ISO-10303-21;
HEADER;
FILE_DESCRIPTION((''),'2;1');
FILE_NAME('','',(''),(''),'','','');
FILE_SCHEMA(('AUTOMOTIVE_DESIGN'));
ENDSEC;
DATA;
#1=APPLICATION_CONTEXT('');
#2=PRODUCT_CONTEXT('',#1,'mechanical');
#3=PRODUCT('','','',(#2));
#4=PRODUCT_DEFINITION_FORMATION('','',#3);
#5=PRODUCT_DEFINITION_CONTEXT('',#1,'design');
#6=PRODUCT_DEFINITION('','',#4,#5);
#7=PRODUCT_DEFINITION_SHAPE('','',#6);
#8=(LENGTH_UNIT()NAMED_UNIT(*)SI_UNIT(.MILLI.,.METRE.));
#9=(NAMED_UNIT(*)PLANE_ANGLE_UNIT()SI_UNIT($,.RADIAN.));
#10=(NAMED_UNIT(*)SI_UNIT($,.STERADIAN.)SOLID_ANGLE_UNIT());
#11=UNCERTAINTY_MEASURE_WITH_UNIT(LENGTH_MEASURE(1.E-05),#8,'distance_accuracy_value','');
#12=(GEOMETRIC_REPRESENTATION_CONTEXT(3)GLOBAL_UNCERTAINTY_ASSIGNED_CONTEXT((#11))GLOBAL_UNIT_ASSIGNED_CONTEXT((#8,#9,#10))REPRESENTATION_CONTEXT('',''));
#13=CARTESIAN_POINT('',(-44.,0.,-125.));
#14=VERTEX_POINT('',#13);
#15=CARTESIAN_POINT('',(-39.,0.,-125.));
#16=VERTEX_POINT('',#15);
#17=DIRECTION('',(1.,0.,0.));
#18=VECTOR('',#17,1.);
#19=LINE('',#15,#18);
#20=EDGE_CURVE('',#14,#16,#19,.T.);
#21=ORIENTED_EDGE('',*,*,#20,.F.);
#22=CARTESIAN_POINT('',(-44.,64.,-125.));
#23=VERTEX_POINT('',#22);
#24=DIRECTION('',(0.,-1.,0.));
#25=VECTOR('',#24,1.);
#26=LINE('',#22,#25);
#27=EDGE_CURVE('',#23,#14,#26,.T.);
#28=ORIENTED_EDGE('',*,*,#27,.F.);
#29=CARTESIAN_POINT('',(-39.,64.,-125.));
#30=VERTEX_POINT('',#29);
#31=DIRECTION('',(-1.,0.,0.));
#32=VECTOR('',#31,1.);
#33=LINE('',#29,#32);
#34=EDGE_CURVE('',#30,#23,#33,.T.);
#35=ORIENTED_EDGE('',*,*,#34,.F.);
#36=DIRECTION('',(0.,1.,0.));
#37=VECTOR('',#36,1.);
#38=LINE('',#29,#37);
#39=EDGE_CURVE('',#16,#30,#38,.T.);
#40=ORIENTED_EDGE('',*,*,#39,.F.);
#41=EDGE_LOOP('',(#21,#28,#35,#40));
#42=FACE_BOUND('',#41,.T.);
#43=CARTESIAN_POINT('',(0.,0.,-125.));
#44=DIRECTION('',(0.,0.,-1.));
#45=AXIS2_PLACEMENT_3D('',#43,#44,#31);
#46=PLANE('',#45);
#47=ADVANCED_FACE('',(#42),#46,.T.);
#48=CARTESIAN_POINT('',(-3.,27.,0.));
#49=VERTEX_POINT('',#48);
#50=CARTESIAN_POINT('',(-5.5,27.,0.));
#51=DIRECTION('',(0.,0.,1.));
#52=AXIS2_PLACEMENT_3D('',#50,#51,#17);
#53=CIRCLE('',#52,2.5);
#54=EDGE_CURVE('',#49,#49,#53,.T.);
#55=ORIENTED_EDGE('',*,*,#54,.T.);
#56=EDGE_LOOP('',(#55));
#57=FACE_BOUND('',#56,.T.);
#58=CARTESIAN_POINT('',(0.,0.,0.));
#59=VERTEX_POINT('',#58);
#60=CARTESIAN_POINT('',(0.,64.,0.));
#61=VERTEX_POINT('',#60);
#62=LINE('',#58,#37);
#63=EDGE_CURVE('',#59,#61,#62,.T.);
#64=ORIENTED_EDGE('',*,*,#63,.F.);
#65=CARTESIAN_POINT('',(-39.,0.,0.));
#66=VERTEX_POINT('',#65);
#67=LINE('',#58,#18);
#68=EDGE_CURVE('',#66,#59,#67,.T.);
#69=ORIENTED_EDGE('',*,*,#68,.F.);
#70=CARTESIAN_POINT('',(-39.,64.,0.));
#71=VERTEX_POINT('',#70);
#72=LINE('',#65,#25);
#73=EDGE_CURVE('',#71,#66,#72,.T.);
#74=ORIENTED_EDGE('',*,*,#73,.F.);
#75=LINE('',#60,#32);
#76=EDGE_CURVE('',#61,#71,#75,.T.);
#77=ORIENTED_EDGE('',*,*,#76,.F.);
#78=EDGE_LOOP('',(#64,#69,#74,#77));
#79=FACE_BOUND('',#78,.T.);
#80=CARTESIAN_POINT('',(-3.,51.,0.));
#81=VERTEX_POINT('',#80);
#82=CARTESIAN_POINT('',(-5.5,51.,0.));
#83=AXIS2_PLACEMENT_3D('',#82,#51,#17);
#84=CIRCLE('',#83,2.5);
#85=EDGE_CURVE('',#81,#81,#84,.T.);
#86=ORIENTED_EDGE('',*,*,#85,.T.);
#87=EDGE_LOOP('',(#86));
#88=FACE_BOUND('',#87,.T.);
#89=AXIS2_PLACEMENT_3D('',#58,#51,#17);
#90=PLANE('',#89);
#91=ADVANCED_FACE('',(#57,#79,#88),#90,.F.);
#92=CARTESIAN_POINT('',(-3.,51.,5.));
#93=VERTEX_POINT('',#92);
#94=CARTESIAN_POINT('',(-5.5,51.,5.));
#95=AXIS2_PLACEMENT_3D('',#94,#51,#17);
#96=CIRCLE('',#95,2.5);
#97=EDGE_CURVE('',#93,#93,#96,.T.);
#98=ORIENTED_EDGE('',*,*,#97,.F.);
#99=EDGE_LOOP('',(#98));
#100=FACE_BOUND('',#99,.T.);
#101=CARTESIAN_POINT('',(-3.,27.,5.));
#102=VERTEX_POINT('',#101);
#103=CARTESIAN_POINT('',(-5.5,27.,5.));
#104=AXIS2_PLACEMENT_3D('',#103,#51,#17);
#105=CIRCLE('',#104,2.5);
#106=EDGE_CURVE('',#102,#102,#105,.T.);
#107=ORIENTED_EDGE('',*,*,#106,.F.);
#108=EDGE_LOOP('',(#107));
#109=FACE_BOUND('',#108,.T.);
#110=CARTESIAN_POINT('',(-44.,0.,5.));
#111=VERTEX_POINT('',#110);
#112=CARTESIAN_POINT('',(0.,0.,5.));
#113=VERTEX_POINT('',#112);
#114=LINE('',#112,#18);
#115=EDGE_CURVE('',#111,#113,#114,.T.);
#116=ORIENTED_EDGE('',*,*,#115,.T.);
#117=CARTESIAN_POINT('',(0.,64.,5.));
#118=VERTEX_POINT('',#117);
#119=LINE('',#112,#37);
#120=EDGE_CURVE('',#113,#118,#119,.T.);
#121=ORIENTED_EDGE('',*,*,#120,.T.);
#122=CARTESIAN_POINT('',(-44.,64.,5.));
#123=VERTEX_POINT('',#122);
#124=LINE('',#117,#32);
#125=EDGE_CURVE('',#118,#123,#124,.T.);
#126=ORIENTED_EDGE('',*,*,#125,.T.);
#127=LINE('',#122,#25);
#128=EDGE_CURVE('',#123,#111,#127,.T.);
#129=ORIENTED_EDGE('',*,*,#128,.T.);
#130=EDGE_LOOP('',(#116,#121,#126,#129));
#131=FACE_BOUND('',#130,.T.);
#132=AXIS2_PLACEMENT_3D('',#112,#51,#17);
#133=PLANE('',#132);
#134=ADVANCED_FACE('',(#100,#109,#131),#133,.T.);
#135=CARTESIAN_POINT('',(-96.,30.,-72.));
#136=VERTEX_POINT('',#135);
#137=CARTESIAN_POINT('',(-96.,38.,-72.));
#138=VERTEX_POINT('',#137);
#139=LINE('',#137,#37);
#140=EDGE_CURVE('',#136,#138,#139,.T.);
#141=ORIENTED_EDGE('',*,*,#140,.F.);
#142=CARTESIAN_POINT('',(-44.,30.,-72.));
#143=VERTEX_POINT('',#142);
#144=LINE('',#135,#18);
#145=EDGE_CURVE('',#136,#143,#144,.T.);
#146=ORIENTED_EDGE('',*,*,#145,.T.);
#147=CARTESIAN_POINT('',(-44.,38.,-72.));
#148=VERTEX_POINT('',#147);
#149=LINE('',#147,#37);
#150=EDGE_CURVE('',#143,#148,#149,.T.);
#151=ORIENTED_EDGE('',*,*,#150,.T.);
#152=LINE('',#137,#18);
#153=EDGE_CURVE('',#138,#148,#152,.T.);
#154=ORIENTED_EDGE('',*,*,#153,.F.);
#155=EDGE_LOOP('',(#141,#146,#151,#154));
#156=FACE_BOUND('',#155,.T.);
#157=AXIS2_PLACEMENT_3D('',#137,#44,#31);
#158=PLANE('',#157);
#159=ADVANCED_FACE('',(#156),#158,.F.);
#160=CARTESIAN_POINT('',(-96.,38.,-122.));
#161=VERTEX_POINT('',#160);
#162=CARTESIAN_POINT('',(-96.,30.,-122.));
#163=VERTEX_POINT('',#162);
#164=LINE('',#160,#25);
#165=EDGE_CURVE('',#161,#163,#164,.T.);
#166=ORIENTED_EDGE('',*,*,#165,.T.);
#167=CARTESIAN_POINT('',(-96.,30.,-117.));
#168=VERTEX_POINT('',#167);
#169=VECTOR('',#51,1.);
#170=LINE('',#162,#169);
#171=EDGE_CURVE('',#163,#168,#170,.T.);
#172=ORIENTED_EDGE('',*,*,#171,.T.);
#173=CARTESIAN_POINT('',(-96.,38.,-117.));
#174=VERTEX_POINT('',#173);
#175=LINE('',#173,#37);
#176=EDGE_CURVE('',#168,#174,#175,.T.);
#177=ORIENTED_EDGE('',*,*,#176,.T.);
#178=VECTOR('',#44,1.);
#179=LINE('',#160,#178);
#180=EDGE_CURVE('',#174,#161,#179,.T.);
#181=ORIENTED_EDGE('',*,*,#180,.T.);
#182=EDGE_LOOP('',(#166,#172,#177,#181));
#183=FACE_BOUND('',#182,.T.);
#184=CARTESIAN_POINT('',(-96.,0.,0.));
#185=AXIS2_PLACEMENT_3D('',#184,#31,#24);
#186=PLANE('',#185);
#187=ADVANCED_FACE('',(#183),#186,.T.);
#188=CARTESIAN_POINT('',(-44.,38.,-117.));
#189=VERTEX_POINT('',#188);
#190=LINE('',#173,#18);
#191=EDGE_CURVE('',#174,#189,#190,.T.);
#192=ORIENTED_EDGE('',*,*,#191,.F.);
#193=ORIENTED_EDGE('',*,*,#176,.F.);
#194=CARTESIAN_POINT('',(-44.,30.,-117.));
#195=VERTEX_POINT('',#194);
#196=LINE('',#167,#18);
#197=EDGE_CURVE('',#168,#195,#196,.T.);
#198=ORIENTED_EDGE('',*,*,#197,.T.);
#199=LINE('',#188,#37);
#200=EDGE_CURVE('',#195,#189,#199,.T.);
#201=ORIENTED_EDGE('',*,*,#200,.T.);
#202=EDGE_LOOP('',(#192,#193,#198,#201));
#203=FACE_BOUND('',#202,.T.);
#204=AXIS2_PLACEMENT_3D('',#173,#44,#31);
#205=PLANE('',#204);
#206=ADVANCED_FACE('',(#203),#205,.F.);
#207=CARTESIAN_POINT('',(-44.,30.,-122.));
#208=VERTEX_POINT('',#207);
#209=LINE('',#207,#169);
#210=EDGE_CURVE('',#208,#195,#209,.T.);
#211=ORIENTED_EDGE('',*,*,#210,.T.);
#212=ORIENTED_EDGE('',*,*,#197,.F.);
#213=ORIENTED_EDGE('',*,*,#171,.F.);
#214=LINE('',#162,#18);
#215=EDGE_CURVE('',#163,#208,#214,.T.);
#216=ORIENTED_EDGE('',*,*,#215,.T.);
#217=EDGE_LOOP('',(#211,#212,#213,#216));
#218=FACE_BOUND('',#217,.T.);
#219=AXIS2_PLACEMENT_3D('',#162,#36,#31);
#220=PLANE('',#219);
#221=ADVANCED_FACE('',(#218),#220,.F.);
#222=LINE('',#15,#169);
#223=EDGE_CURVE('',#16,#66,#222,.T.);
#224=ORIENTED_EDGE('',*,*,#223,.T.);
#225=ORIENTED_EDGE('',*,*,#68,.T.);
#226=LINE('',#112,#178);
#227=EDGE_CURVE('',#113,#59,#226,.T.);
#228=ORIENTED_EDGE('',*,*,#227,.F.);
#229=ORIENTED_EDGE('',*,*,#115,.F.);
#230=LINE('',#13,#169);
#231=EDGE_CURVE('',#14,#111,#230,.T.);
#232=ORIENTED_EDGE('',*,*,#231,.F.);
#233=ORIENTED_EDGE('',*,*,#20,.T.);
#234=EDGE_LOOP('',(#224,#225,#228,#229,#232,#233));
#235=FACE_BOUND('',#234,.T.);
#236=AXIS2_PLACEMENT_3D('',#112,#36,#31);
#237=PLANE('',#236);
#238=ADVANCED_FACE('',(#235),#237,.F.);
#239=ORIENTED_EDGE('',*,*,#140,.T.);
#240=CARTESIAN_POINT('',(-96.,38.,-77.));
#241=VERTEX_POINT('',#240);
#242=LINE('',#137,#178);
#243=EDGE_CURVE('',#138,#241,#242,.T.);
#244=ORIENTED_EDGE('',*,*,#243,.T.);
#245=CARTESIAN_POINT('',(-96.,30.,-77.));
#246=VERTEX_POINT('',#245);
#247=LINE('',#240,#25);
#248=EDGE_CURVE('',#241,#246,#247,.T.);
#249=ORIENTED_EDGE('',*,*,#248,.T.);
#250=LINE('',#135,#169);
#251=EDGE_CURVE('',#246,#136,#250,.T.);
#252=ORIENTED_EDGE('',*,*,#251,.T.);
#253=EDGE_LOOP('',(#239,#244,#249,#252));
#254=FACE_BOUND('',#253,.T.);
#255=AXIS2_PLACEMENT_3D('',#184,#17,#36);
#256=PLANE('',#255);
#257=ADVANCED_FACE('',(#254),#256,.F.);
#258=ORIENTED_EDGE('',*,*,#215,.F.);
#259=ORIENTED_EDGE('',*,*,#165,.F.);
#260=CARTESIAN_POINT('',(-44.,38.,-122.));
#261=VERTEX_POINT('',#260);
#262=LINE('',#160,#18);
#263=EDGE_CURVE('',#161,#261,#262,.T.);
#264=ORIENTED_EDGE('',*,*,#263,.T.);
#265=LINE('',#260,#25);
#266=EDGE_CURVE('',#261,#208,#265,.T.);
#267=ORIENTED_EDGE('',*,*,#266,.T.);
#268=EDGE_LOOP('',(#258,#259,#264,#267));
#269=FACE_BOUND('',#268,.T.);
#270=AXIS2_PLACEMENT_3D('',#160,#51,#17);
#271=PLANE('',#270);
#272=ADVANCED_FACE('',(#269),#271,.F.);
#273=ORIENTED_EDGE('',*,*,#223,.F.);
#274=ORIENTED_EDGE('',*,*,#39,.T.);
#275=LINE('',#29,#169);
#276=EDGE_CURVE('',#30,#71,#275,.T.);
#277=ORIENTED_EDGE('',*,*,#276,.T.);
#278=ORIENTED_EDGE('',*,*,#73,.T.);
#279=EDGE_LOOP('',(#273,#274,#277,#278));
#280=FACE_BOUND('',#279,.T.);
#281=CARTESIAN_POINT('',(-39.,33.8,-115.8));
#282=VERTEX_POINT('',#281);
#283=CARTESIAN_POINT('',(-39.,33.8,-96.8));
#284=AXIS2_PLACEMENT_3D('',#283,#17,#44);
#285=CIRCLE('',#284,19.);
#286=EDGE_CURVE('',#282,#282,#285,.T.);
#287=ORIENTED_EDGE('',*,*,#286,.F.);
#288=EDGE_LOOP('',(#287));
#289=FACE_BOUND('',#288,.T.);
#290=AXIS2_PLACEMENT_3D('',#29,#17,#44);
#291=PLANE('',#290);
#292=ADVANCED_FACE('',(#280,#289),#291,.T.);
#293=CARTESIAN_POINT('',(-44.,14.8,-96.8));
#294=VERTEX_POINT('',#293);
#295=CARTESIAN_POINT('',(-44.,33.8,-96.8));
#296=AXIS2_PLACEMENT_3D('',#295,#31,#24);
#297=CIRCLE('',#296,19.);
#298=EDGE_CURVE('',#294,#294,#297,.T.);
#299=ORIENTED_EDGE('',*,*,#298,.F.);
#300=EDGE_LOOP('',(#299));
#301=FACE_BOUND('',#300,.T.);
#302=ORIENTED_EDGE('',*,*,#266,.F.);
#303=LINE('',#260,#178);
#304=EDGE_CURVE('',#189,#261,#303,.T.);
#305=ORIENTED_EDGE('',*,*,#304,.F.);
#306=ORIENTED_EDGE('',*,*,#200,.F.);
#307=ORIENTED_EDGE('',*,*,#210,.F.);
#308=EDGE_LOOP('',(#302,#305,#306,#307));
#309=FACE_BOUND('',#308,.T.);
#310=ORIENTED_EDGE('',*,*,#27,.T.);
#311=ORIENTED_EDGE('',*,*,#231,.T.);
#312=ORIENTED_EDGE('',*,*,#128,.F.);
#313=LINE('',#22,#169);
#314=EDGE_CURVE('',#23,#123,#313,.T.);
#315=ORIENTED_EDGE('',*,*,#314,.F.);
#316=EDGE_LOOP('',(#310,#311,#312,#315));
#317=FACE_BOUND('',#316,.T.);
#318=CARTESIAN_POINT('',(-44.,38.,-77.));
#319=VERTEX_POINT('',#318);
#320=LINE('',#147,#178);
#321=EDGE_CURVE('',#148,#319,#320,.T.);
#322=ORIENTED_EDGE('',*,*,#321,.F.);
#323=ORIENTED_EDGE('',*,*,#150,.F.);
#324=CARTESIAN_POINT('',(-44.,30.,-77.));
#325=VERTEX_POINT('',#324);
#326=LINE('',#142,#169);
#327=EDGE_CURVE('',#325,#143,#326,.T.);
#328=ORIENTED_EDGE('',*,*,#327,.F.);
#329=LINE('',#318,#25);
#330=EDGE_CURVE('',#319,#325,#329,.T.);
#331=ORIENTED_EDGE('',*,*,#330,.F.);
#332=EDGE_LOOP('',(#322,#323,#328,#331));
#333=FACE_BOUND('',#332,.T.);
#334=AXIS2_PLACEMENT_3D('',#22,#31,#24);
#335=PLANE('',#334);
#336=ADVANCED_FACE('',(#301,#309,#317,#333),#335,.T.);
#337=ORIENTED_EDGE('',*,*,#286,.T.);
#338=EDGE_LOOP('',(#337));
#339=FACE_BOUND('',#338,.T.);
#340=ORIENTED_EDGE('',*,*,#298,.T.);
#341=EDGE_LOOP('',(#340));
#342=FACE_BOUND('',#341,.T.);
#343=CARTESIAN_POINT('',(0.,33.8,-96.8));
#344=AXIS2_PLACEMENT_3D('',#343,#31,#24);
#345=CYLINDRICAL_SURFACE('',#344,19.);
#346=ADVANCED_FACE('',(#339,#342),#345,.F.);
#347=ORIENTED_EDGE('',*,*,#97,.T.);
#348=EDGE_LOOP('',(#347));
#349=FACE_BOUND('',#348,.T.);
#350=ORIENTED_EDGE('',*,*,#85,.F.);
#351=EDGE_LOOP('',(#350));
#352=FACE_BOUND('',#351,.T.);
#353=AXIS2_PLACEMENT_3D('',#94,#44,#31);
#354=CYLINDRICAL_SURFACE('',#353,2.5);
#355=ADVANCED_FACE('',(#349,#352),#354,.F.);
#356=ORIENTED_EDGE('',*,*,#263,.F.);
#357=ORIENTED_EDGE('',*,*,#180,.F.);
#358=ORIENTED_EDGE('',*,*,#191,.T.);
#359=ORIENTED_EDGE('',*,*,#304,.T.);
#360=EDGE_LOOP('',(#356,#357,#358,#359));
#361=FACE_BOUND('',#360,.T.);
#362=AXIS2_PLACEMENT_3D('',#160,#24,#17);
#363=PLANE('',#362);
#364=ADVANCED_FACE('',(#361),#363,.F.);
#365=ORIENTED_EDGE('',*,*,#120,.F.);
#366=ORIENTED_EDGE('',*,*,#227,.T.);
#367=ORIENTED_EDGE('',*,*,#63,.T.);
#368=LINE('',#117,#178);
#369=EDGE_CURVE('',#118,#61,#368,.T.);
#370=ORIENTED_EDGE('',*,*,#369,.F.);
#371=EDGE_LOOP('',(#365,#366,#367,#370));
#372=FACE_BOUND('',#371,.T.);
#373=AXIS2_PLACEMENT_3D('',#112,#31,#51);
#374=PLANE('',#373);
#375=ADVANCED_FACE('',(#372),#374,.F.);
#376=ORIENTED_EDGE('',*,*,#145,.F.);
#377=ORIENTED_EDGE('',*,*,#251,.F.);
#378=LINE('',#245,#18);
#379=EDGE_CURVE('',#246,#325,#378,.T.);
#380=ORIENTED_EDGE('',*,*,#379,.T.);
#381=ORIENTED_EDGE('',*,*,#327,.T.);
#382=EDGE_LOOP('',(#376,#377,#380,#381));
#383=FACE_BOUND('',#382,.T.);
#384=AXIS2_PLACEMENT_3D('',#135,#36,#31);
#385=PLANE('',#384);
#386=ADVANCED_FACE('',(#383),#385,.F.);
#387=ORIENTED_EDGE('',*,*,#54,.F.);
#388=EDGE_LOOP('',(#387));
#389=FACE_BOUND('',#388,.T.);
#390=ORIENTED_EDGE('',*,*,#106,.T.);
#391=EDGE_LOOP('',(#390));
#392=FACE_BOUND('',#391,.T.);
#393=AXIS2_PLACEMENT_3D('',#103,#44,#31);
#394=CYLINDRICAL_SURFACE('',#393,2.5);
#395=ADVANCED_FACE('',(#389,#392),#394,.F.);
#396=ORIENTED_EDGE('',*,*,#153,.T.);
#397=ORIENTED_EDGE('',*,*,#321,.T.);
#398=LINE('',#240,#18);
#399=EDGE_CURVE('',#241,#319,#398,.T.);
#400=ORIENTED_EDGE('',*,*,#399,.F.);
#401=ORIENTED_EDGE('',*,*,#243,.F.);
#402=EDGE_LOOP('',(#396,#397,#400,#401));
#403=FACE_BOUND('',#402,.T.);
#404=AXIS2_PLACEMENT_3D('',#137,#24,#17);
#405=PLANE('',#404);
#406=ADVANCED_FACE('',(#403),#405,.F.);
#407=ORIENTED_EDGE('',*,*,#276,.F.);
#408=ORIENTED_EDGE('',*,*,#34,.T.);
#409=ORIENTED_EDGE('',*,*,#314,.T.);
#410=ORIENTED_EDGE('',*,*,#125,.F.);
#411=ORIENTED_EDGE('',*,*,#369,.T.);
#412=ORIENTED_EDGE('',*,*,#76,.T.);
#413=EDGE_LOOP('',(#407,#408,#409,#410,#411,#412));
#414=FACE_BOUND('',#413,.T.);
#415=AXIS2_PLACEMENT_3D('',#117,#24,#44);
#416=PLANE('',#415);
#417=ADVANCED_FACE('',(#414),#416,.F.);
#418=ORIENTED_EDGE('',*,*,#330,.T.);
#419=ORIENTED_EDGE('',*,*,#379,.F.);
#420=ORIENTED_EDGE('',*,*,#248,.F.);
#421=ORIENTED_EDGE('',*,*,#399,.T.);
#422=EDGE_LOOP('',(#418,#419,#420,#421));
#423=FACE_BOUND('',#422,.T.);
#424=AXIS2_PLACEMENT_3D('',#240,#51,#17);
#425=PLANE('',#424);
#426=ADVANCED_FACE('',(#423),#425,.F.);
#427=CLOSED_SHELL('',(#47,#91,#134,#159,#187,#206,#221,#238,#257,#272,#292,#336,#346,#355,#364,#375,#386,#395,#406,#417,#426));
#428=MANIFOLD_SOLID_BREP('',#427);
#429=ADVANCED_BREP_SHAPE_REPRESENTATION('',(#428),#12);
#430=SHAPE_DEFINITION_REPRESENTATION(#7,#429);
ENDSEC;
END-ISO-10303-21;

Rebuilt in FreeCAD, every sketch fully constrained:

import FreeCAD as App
import Part
import Sketcher

V = App.Vector


def add_polygon(sketch, points):
    """Adds a closed chain of lines whose ends are joined by coincident constraints."""
    first, n = sketch.GeometryCount, len(points)
    for a, b in zip(points, points[1:] + points[:1]):
        sketch.addGeometry(Part.LineSegment(App.Vector(*a, 0), App.Vector(*b, 0)), False)
    for i in range(n):
        sketch.addConstraint(Sketcher.Constraint("Coincident", first + i, 2, first + (i + 1) % n, 1))

doc = App.newDocument("Part")
body = doc.addObject("PartDesign::Body", "Body")

sketch1 = body.newObject("Sketcher::SketchObject", "Sketch")
sketch1.AttachmentSupport = (doc.getObject("XY_Plane"), [""])
sketch1.MapMode = "FlatFace"
add_polygon(sketch1, [(-39, 64), (-39, 0), (0, 0), (0, 64)])
sketch1.addGeometry(Part.Circle(V(-5.5, 27, 0), V(0, 0, 1), 2.5), False)
sketch1.addGeometry(Part.Circle(V(-5.5, 51, 0), V(0, 0, 1), 2.5), False)
sketch1.addConstraint([
    Sketcher.Constraint("Vertical", 0),
    Sketcher.Constraint("Horizontal", 1),
    Sketcher.Constraint("Vertical", 2),
    Sketcher.Constraint("Horizontal", 3),
    Sketcher.Constraint("Coincident", 1, 2, -1, 1),
    Sketcher.Constraint("Equal", 4, 5),
    Sketcher.Constraint("Vertical", 4, 3, 5, 3),
    Sketcher.Constraint("Diameter", 4, 5.0),
    Sketcher.Constraint("DistanceX", 1, 1, 1, 2, 39.0),
    Sketcher.Constraint("DistanceY", 0, 2, 0, 1, 64.0),
    Sketcher.Constraint("DistanceY", -1, 1, 4, 3, 27.0),
    Sketcher.Constraint("DistanceY", -1, 1, 5, 3, 51.0),
    Sketcher.Constraint("DistanceX", 4, 3, -1, 1, 5.5),
])
pad1 = body.newObject("PartDesign::Pad", "Pad")
pad1.Profile = sketch1
pad1.Length = 5

sketch2 = body.newObject("Sketcher::SketchObject", "Sketch001")
sketch2.AttachmentSupport = (doc.getObject("XY_Plane"), [""])
sketch2.MapMode = "FlatFace"
sketch2.AttachmentOffset = App.Placement(V(0, 0, 5), App.Rotation())
add_polygon(sketch2, [(-44, 64), (-44, 0), (-39, 0), (-39, 64)])
sketch2.addConstraint([
    Sketcher.Constraint("Vertical", 0),
    Sketcher.Constraint("Horizontal", 1),
    Sketcher.Constraint("Vertical", 2),
    Sketcher.Constraint("Horizontal", 3),
    Sketcher.Constraint("PointOnObject", 0, 2, -1),
    Sketcher.Constraint("DistanceX", 1, 1, 1, 2, 5.0),
    Sketcher.Constraint("DistanceY", 0, 2, 0, 1, 64.0),
    Sketcher.Constraint("DistanceX", 0, 2, -1, 1, 44.0),
])
pad2 = body.newObject("PartDesign::Pad", "Pad001")
pad2.Profile = sketch2
pad2.Length = 130
pad2.Reversed = True

sketch3 = body.newObject("Sketcher::SketchObject", "Sketch002")
sketch3.AttachmentSupport = (doc.getObject("YZ_Plane"), [""])
sketch3.MapMode = "FlatFace"
sketch3.AttachmentOffset = App.Placement(V(0, 0, -44), App.Rotation())
sketch3.addGeometry(Part.Circle(V(34, -97, 0), V(0, 0, 1), 19), False)
sketch3.addConstraint([
    Sketcher.Constraint("Diameter", 0, 38.0),
    Sketcher.Constraint("DistanceX", -1, 1, 0, 3, 33.8),
    Sketcher.Constraint("DistanceY", 0, 3, -1, 1, 96.8),
])
pocket1 = body.newObject("PartDesign::Pocket", "Pocket")
pocket1.Profile = sketch3
pocket1.Type = "ThroughAll"
pocket1.Reversed = True

sketch4 = body.newObject("Sketcher::SketchObject", "Sketch003")
sketch4.AttachmentSupport = (doc.getObject("YZ_Plane"), [""])
sketch4.MapMode = "FlatFace"
sketch4.AttachmentOffset = App.Placement(V(0, 0, -44), App.Rotation())
add_polygon(sketch4, [(38, -77), (30, -77), (30, -72), (38, -72)])
add_polygon(sketch4, [(38, -122), (30, -122), (30, -117), (38, -117)])
sketch4.addConstraint([
    Sketcher.Constraint("Horizontal", 0),
    Sketcher.Constraint("Vertical", 1),
    Sketcher.Constraint("Horizontal", 2),
    Sketcher.Constraint("Vertical", 3),
    Sketcher.Constraint("Horizontal", 4),
    Sketcher.Constraint("Vertical", 5),
    Sketcher.Constraint("Horizontal", 6),
    Sketcher.Constraint("Vertical", 7),
    Sketcher.Constraint("Vertical", 1, 2, 4, 2),
    Sketcher.Constraint("Vertical", 3, 2, 6, 2),
    Sketcher.Constraint("Equal", 3, 5),
    Sketcher.Constraint("DistanceX", 0, 2, 0, 1, 8.0),
    Sketcher.Constraint("DistanceY", 1, 1, 1, 2, 5.0),
    Sketcher.Constraint("DistanceX", -1, 1, 0, 2, 30.0),
    Sketcher.Constraint("DistanceY", 0, 2, -1, 1, 77.0),
    Sketcher.Constraint("DistanceY", 4, 2, -1, 1, 122.0),
])
pad3 = body.newObject("PartDesign::Pad", "Pad002")
pad3.Profile = sketch4
pad3.Length = 52
pad3.Reversed = True

doc.recompute()
